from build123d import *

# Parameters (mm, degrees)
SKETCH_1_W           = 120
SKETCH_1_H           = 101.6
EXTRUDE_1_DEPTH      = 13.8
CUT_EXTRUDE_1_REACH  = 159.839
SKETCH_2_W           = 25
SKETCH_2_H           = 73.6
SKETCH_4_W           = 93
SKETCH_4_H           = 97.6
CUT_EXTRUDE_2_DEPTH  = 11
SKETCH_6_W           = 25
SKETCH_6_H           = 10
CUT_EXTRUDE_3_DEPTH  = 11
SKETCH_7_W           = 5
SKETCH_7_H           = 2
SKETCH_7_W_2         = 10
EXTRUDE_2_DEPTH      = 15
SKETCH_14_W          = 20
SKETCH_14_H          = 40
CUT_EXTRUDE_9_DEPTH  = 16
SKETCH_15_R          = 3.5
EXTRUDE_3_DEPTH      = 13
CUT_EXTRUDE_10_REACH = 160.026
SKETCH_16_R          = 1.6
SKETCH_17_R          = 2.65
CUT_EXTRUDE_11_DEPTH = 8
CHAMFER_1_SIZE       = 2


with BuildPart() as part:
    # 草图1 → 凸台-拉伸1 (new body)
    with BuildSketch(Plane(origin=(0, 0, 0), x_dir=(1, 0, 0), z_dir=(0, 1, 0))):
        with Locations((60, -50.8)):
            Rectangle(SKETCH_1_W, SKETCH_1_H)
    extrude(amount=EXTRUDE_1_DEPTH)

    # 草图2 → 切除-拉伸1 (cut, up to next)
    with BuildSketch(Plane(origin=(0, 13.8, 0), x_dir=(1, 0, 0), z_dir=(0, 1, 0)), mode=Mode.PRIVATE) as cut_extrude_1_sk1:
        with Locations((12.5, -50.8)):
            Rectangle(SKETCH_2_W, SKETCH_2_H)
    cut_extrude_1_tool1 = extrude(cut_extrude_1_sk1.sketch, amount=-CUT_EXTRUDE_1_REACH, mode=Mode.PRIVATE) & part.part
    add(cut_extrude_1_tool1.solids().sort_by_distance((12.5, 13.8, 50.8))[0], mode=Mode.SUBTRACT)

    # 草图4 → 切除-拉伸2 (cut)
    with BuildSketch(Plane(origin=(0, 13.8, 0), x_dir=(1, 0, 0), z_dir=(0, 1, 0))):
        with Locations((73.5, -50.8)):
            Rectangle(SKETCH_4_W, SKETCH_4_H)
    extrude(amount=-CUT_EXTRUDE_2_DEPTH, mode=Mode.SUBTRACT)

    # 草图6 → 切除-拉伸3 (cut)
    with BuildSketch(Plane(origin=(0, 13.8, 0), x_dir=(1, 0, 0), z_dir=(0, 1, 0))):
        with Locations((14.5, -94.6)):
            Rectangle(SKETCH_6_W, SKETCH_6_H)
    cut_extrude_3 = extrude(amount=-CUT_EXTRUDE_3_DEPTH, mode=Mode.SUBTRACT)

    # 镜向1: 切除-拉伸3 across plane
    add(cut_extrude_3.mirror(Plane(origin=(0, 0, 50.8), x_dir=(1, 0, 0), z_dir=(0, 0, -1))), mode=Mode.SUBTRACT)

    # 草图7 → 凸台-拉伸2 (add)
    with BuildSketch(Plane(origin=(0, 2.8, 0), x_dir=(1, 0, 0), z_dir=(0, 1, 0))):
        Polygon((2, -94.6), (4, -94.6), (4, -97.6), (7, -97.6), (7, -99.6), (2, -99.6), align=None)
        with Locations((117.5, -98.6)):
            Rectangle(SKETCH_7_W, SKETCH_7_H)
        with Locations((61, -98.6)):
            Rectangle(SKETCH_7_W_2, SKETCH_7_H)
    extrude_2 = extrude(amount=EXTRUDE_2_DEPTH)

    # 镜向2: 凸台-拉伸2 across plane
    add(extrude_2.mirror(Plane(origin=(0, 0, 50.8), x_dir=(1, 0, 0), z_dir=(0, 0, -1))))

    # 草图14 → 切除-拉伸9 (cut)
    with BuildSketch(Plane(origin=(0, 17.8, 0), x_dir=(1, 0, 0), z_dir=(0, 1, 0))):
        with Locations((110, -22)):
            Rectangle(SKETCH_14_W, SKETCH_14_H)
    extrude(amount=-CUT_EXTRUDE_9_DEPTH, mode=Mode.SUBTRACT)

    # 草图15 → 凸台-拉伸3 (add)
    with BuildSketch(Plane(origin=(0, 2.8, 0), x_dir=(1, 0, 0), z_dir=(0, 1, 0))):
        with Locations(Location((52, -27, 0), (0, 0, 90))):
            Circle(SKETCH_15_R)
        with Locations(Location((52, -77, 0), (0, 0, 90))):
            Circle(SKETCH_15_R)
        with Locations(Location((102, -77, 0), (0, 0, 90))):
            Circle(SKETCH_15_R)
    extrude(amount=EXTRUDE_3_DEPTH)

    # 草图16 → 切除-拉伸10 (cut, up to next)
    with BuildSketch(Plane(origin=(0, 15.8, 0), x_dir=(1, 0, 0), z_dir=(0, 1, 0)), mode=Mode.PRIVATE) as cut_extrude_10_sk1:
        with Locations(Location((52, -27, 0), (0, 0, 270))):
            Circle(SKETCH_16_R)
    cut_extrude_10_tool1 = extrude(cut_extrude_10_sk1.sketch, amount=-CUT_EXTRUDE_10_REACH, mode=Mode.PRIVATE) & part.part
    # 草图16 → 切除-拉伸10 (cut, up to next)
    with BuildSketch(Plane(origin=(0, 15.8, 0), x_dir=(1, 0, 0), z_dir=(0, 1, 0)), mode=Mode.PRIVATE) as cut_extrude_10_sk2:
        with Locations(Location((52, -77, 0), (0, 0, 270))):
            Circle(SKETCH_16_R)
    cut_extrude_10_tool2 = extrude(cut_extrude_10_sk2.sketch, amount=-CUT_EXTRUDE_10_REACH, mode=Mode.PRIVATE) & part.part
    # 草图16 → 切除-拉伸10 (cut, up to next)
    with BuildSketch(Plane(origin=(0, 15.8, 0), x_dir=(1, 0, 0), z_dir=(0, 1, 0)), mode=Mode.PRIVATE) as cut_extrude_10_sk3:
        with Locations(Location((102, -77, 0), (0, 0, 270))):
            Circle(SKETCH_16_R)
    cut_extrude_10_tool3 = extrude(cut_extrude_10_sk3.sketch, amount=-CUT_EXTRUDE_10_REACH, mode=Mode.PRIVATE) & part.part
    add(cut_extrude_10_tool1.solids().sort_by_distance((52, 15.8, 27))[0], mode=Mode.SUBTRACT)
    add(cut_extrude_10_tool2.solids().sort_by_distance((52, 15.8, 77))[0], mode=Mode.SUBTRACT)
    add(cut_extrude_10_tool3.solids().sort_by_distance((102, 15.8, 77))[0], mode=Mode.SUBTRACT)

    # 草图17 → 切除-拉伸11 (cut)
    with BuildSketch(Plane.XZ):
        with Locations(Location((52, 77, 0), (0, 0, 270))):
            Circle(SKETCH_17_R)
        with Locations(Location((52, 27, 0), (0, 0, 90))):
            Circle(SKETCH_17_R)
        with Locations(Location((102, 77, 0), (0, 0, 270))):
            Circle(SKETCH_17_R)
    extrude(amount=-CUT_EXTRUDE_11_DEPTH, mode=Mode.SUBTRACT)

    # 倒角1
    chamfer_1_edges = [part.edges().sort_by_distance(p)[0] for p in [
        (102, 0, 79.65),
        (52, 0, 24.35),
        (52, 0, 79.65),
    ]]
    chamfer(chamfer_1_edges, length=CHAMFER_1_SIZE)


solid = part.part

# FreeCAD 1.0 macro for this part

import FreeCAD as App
import Part
import Sketcher

V = App.Vector
Q = App.Units.Quantity


def edges_at(feature, points):
    """Names of the edges that pass closest to the given points."""
    edges = feature.Shape.Edges
    near = lambda p: min(range(len(edges)), key=lambda i: edges[i].distToShape(Part.Vertex(*p))[0])
    return sorted({f"Edge{near(p) + 1}" for p in points})

doc = App.newDocument("Part")
params = doc.addObject("Spreadsheet::Sheet", "Params")
for row, (alias, value) in enumerate([
    ("sketch1_width", "120 mm"),
    ("sketch1_height", "101.6 mm"),
    ("pad1_length", "13.8 mm"),
    ("sketch2_width", "25 mm"),
    ("sketch2_height", "73.6 mm"),
    ("sketch3_width", "93 mm"),
    ("sketch3_height", "97.6 mm"),
    ("pocket2_length", "11 mm"),
    ("sketch4_width", "25 mm"),
    ("sketch4_height", "10 mm"),
    ("pocket3_length", "11 mm"),
    ("sketch5_width", "2 mm"),
    ("sketch5_width2", "5 mm"),
    ("sketch5_width3", "10 mm"),
    ("pad2_length", "15 mm"),
    ("sketch6_width", "20 mm"),
    ("sketch6_height", "40 mm"),
    ("pocket4_length", "16 mm"),
    ("sketch7_diameter", "7 mm"),
    ("pad3_length", "13 mm"),
    ("sketch8_diameter", "3.2 mm"),
    ("sketch9_diameter", "3.2 mm"),
    ("sketch10_diameter", "3.2 mm"),
    ("sketch11_diameter", "5.3 mm"),
    ("pocket8_length", "8 mm"),
    ("chamfer_size", "2 mm"),
], start=1):
    params.set(f"A{row}", alias)
    params.set(f"B{row}", "=" + value)
    params.setAlias(f"B{row}", alias)

body = doc.addObject("PartDesign::Body", "Body")

sketch1 = body.newObject("Sketcher::SketchObject", "Sketch")
sketch1.AttachmentSupport = (doc.getObject("XZ_Plane"), [""])
sketch1.MapMode = "FlatFace"
sketch1.addGeometry(Part.LineSegment(V(0, 0, 0), V(0, 102, 0)), False)
sketch1.addGeometry(Part.LineSegment(V(0, 102, 0), V(120, 102, 0)), False)
sketch1.addGeometry(Part.LineSegment(V(120, 102, 0), V(120, 0, 0)), False)
sketch1.addGeometry(Part.LineSegment(V(120, 0, 0), V(0, 0, 0)), False)
sketch1.addConstraint(Sketcher.Constraint("Coincident", 0, 2, 1, 1))
sketch1.addConstraint(Sketcher.Constraint("Coincident", 1, 2, 2, 1))
sketch1.addConstraint(Sketcher.Constraint("Coincident", 2, 2, 3, 1))
sketch1.addConstraint(Sketcher.Constraint("Coincident", 3, 2, 0, 1))
sketch1.addConstraint(Sketcher.Constraint("Vertical", 0))
sketch1.addConstraint(Sketcher.Constraint("Horizontal", 1))
sketch1.addConstraint(Sketcher.Constraint("Vertical", 2))
sketch1.addConstraint(Sketcher.Constraint("Horizontal", 3))
sketch1.addConstraint(Sketcher.Constraint("Coincident", 3, 2, -1, 1))
sketch1.addConstraint(Sketcher.Constraint("DistanceX", 1, 1, 1, 2, Q("120 mm")))
sketch1.addConstraint(Sketcher.Constraint("DistanceY", 0, 1, 0, 2, Q("101.6 mm")))
sketch1.setExpression("Constraints[9]", "Params.sketch1_width")
sketch1.setExpression("Constraints[10]", "Params.sketch1_height")
pad1 = body.newObject("PartDesign::Pad", "Pad")
pad1.Profile = sketch1
pad1.setExpression("Length", "Params.pad1_length")
pad1.Reversed = True

sketch2 = body.newObject("Sketcher::SketchObject", "Sketch001")
sketch2.AttachmentSupport = (doc.getObject("XZ_Plane"), [""])
sketch2.MapMode = "FlatFace"
sketch2.AttachmentOffset = App.Placement(V(0, 0, -13.8), App.Rotation())
sketch2.addGeometry(Part.LineSegment(V(0, 14, 0), V(0, 88, 0)), False)
sketch2.addGeometry(Part.LineSegment(V(0, 88, 0), V(25, 88, 0)), False)
sketch2.addGeometry(Part.LineSegment(V(25, 88, 0), V(25, 14, 0)), False)
sketch2.addGeometry(Part.LineSegment(V(25, 14, 0), V(0, 14, 0)), False)
sketch2.addConstraint(Sketcher.Constraint("Coincident", 0, 2, 1, 1))
sketch2.addConstraint(Sketcher.Constraint("Coincident", 1, 2, 2, 1))
sketch2.addConstraint(Sketcher.Constraint("Coincident", 2, 2, 3, 1))
sketch2.addConstraint(Sketcher.Constraint("Coincident", 3, 2, 0, 1))
sketch2.addConstraint(Sketcher.Constraint("Vertical", 0))
sketch2.addConstraint(Sketcher.Constraint("Horizontal", 1))
sketch2.addConstraint(Sketcher.Constraint("Vertical", 2))
sketch2.addConstraint(Sketcher.Constraint("Horizontal", 3))
sketch2.addConstraint(Sketcher.Constraint("PointOnObject", 0, 2, -2))
sketch2.addConstraint(Sketcher.Constraint("DistanceX", 1, 1, 1, 2, Q("25 mm")))
sketch2.addConstraint(Sketcher.Constraint("DistanceY", 0, 1, 0, 2, Q("73.6 mm")))
sketch2.addConstraint(Sketcher.Constraint("DistanceY", -1, 1, 2, 2, Q("14 mm")))
sketch2.setExpression("Constraints[9]", "Params.sketch2_width")
sketch2.setExpression("Constraints[10]", "Params.sketch2_height")
pocket1 = body.newObject("PartDesign::Pocket", "Pocket")
pocket1.Profile = sketch2
pocket1.Type = "UpToFirst"
pocket1.Reversed = True

sketch3 = body.newObject("Sketcher::SketchObject", "Sketch002")
sketch3.AttachmentSupport = (doc.getObject("XZ_Plane"), [""])
sketch3.MapMode = "FlatFace"
sketch3.AttachmentOffset = App.Placement(V(0, 0, -13.8), App.Rotation())
sketch3.addGeometry(Part.LineSegment(V(27, 2, 0), V(27, 100, 0)), False)
sketch3.addGeometry(Part.LineSegment(V(27, 100, 0), V(120, 100, 0)), False)
sketch3.addGeometry(Part.LineSegment(V(120, 100, 0), V(120, 2, 0)), False)
sketch3.addGeometry(Part.LineSegment(V(120, 2, 0), V(27, 2, 0)), False)
sketch3.addConstraint(Sketcher.Constraint("Coincident", 0, 2, 1, 1))
sketch3.addConstraint(Sketcher.Constraint("Coincident", 1, 2, 2, 1))
sketch3.addConstraint(Sketcher.Constraint("Coincident", 2, 2, 3, 1))
sketch3.addConstraint(Sketcher.Constraint("Coincident", 3, 2, 0, 1))
sketch3.addConstraint(Sketcher.Constraint("Vertical", 0))
sketch3.addConstraint(Sketcher.Constraint("Horizontal", 1))
sketch3.addConstraint(Sketcher.Constraint("Vertical", 2))
sketch3.addConstraint(Sketcher.Constraint("Horizontal", 3))
sketch3.addConstraint(Sketcher.Constraint("DistanceX", 1, 1, 1, 2, Q("93 mm")))
sketch3.addConstraint(Sketcher.Constraint("DistanceY", 0, 1, 0, 2, Q("97.6 mm")))
sketch3.addConstraint(Sketcher.Constraint("DistanceX", -1, 1, 0, 2, Q("27 mm")))
sketch3.addConstraint(Sketcher.Constraint("DistanceY", -1, 1, 2, 2, Q("2 mm")))
sketch3.setExpression("Constraints[8]", "Params.sketch3_width")
sketch3.setExpression("Constraints[9]", "Params.sketch3_height")
pocket2 = body.newObject("PartDesign::Pocket", "Pocket001")
pocket2.Profile = sketch3
pocket2.setExpression("Length", "Params.pocket2_length")
pocket2.Reversed = True

sketch4 = body.newObject("Sketcher::SketchObject", "Sketch003")
sketch4.AttachmentSupport = (doc.getObject("XZ_Plane"), [""])
sketch4.MapMode = "FlatFace"
sketch4.AttachmentOffset = App.Placement(V(0, 0, -13.8), App.Rotation())
sketch4.addGeometry(Part.LineSegment(V(2, 90, 0), V(2, 100, 0)), False)
sketch4.addGeometry(Part.LineSegment(V(2, 100, 0), V(27, 100, 0)), False)
sketch4.addGeometry(Part.LineSegment(V(27, 100, 0), V(27, 90, 0)), False)
sketch4.addGeometry(Part.LineSegment(V(27, 90, 0), V(2, 90, 0)), False)
sketch4.addConstraint(Sketcher.Constraint("Coincident", 0, 2, 1, 1))
sketch4.addConstraint(Sketcher.Constraint("Coincident", 1, 2, 2, 1))
sketch4.addConstraint(Sketcher.Constraint("Coincident", 2, 2, 3, 1))
sketch4.addConstraint(Sketcher.Constraint("Coincident", 3, 2, 0, 1))
sketch4.addConstraint(Sketcher.Constraint("Vertical", 0))
sketch4.addConstraint(Sketcher.Constraint("Horizontal", 1))
sketch4.addConstraint(Sketcher.Constraint("Vertical", 2))
sketch4.addConstraint(Sketcher.Constraint("Horizontal", 3))
sketch4.addConstraint(Sketcher.Constraint("DistanceX", 1, 1, 1, 2, Q("25 mm")))
sketch4.addConstraint(Sketcher.Constraint("DistanceY", 0, 1, 0, 2, Q("10 mm")))
sketch4.addConstraint(Sketcher.Constraint("DistanceX", -1, 1, 0, 2, Q("2 mm")))
sketch4.addConstraint(Sketcher.Constraint("DistanceY", -1, 1, 0, 2, Q("99.6 mm")))
sketch4.setExpression("Constraints[8]", "Params.sketch4_width")
sketch4.setExpression("Constraints[9]", "Params.sketch4_height")
pocket3 = body.newObject("PartDesign::Pocket", "Pocket002")
pocket3.Profile = sketch4
pocket3.setExpression("Length", "Params.pocket3_length")
pocket3.Reversed = True
doc.recompute()

datumplane = body.newObject("PartDesign::Plane", "DatumPlane")
datumplane.AttachmentSupport = (doc.getObject("XY_Plane"), [""])
datumplane.MapMode = "FlatFace"
datumplane.AttachmentOffset = App.Placement(V(0, 0, 50.8), App.Rotation())
mirrored = body.newObject("PartDesign::Mirrored", "Mirrored")
mirrored.Originals = [pocket3]
mirrored.MirrorPlane = (datumplane, [""])
body.Tip = mirrored

sketch5 = body.newObject("Sketcher::SketchObject", "Sketch004")
sketch5.AttachmentSupport = (doc.getObject("XZ_Plane"), [""])
sketch5.MapMode = "FlatFace"
sketch5.AttachmentOffset = App.Placement(V(0, 0, -2.8), App.Rotation())
sketch5.addGeometry(Part.LineSegment(V(4, 94.6, 0), V(2, 94.6, 0)), False)
sketch5.addGeometry(Part.LineSegment(V(2, 94.6, 0), V(2, 99.6, 0)), False)
sketch5.addGeometry(Part.LineSegment(V(2, 99.6, 0), V(7, 99.6, 0)), False)
sketch5.addGeometry(Part.LineSegment(V(7, 99.6, 0), V(7, 97.6, 0)), False)
sketch5.addGeometry(Part.LineSegment(V(7, 97.6, 0), V(4, 97.6, 0)), False)
sketch5.addGeometry(Part.LineSegment(V(4, 97.6, 0), V(4, 94.6, 0)), False)
sketch5.addGeometry(Part.LineSegment(V(115, 97.6, 0), V(115, 99.6, 0)), False)
sketch5.addGeometry(Part.LineSegment(V(115, 99.6, 0), V(120, 99.6, 0)), False)
sketch5.addGeometry(Part.LineSegment(V(120, 99.6, 0), V(120, 97.6, 0)), False)
sketch5.addGeometry(Part.LineSegment(V(120, 97.6, 0), V(115, 97.6, 0)), False)
sketch5.addGeometry(Part.LineSegment(V(56, 97.6, 0), V(56, 99.6, 0)), False)
sketch5.addGeometry(Part.LineSegment(V(56, 99.6, 0), V(66, 99.6, 0)), False)
sketch5.addGeometry(Part.LineSegment(V(66, 99.6, 0), V(66, 97.6, 0)), False)
sketch5.addGeometry(Part.LineSegment(V(66, 97.6, 0), V(56, 97.6, 0)), False)
sketch5.addConstraint(Sketcher.Constraint("Coincident", 0, 2, 1, 1))
sketch5.addConstraint(Sketcher.Constraint("Coincident", 1, 2, 2, 1))
sketch5.addConstraint(Sketcher.Constraint("Coincident", 2, 2, 3, 1))
sketch5.addConstraint(Sketcher.Constraint("Coincident", 3, 2, 4, 1))
sketch5.addConstraint(Sketcher.Constraint("Coincident", 4, 2, 5, 1))
sketch5.addConstraint(Sketcher.Constraint("Coincident", 5, 2, 0, 1))
sketch5.addConstraint(Sketcher.Constraint("Coincident", 6, 2, 7, 1))
sketch5.addConstraint(Sketcher.Constraint("Coincident", 7, 2, 8, 1))
sketch5.addConstraint(Sketcher.Constraint("Coincident", 8, 2, 9, 1))
sketch5.addConstraint(Sketcher.Constraint("Coincident", 9, 2, 6, 1))
sketch5.addConstraint(Sketcher.Constraint("Coincident", 10, 2, 11, 1))
sketch5.addConstraint(Sketcher.Constraint("Coincident", 11, 2, 12, 1))
sketch5.addConstraint(Sketcher.Constraint("Coincident", 12, 2, 13, 1))
sketch5.addConstraint(Sketcher.Constraint("Coincident", 13, 2, 10, 1))
sketch5.addConstraint(Sketcher.Constraint("Horizontal", 0))
sketch5.addConstraint(Sketcher.Constraint("Vertical", 1))
sketch5.addConstraint(Sketcher.Constraint("Horizontal", 2))
sketch5.addConstraint(Sketcher.Constraint("Vertical", 3))
sketch5.addConstraint(Sketcher.Constraint("Horizontal", 4))
sketch5.addConstraint(Sketcher.Constraint("Vertical", 5))
sketch5.addConstraint(Sketcher.Constraint("Vertical", 6))
sketch5.addConstraint(Sketcher.Constraint("Horizontal", 7))
sketch5.addConstraint(Sketcher.Constraint("Vertical", 8))
sketch5.addConstraint(Sketcher.Constraint("Horizontal", 9))
sketch5.addConstraint(Sketcher.Constraint("Vertical", 10))
sketch5.addConstraint(Sketcher.Constraint("Horizontal", 11))
sketch5.addConstraint(Sketcher.Constraint("Vertical", 12))
sketch5.addConstraint(Sketcher.Constraint("Horizontal", 13))
sketch5.addConstraint(Sketcher.Constraint("Horizontal", 2, 2, 6, 2))
sketch5.addConstraint(Sketcher.Constraint("Horizontal", 4, 2, 8, 2))
sketch5.addConstraint(Sketcher.Constraint("Horizontal", 7, 2, 10, 2))
sketch5.addConstraint(Sketcher.Constraint("Horizontal", 9, 2, 12, 2))
sketch5.addConstraint(Sketcher.Constraint("Equal", 2, 7))
sketch5.addConstraint(Sketcher.Constraint("Equal", 9, 1))
sketch5.addConstraint(Sketcher.Constraint("Equal", 0, 3))
sketch5.addConstraint(Sketcher.Constraint("DistanceX", 0, 2, 0, 1, Q("2 mm")))
sketch5.addConstraint(Sketcher.Constraint("DistanceX", 2, 1, 2, 2, Q("5 mm")))
sketch5.addConstraint(Sketcher.Constraint("DistanceX", 11, 1, 11, 2, Q("10 mm")))
sketch5.addConstraint(Sketcher.Constraint("DistanceX", -1, 1, 0, 2, Q("2 mm")))
sketch5.addConstraint(Sketcher.Constraint("DistanceX", -1, 1, 6, 2, Q("115 mm")))
sketch5.addConstraint(Sketcher.Constraint("DistanceX", -1, 1, 10, 2, Q("56 mm")))
sketch5.addConstraint(Sketcher.Constraint("DistanceY", -1, 1, 0, 2, Q("94.6 mm")))
sketch5.setExpression("Constraints[35]", "Params.sketch5_width")
sketch5.setExpression("Constraints[36]", "Params.sketch5_width2")
sketch5.setExpression("Constraints[37]", "Params.sketch5_width3")
pad2 = body.newObject("PartDesign::Pad", "Pad001")
pad2.Profile = sketch5
pad2.setExpression("Length", "Params.pad2_length")
pad2.Reversed = True
doc.recompute()

datumplane2 = body.newObject("PartDesign::Plane", "DatumPlane001")
datumplane2.AttachmentSupport = (doc.getObject("XY_Plane"), [""])
datumplane2.MapMode = "FlatFace"
datumplane2.AttachmentOffset = App.Placement(V(0, 0, 50.8), App.Rotation())
mirrored2 = body.newObject("PartDesign::Mirrored", "Mirrored001")
mirrored2.Originals = [pad2]
mirrored2.MirrorPlane = (datumplane2, [""])
body.Tip = mirrored2

sketch6 = body.newObject("Sketcher::SketchObject", "Sketch005")
sketch6.AttachmentSupport = (doc.getObject("XZ_Plane"), [""])
sketch6.MapMode = "FlatFace"
sketch6.AttachmentOffset = App.Placement(V(0, 0, -17.8), App.Rotation())
sketch6.addGeometry(Part.LineSegment(V(100, 2, 0), V(100, 42, 0)), False)
sketch6.addGeometry(Part.LineSegment(V(100, 42, 0), V(120, 42, 0)), False)
sketch6.addGeometry(Part.LineSegment(V(120, 42, 0), V(120, 2, 0)), False)
sketch6.addGeometry(Part.LineSegment(V(120, 2, 0), V(100, 2, 0)), False)
sketch6.addConstraint(Sketcher.Constraint("Coincident", 0, 2, 1, 1))
sketch6.addConstraint(Sketcher.Constraint("Coincident", 1, 2, 2, 1))
sketch6.addConstraint(Sketcher.Constraint("Coincident", 2, 2, 3, 1))
sketch6.addConstraint(Sketcher.Constraint("Coincident", 3, 2, 0, 1))
sketch6.addConstraint(Sketcher.Constraint("Vertical", 0))
sketch6.addConstraint(Sketcher.Constraint("Horizontal", 1))
sketch6.addConstraint(Sketcher.Constraint("Vertical", 2))
sketch6.addConstraint(Sketcher.Constraint("Horizontal", 3))
sketch6.addConstraint(Sketcher.Constraint("DistanceX", 1, 1, 1, 2, Q("20 mm")))
sketch6.addConstraint(Sketcher.Constraint("DistanceY", 0, 1, 0, 2, Q("40 mm")))
sketch6.addConstraint(Sketcher.Constraint("DistanceX", -1, 1, 0, 2, Q("100 mm")))
sketch6.addConstraint(Sketcher.Constraint("DistanceY", -1, 1, 0, 2, Q("42 mm")))
sketch6.setExpression("Constraints[8]", "Params.sketch6_width")
sketch6.setExpression("Constraints[9]", "Params.sketch6_height")
pocket4 = body.newObject("PartDesign::Pocket", "Pocket003")
pocket4.Profile = sketch6
pocket4.setExpression("Length", "Params.pocket4_length")
pocket4.Reversed = True

sketch7 = body.newObject("Sketcher::SketchObject", "Sketch006")
sketch7.AttachmentSupport = (doc.getObject("XZ_Plane"), [""])
sketch7.MapMode = "FlatFace"
sketch7.AttachmentOffset = App.Placement(V(0, 0, -2.8), App.Rotation())
sketch7.addGeometry(Part.Circle(V(52, 27, 0), V(0, 0, 1), 3.5), False)
sketch7.addGeometry(Part.Circle(V(52, 77, 0), V(0, 0, 1), 3.5), False)
sketch7.addGeometry(Part.Circle(V(102, 77, 0), V(0, 0, 1), 3.5), False)
sketch7.addConstraint(Sketcher.Constraint("Equal", 0, 1))
sketch7.addConstraint(Sketcher.Constraint("Equal", 1, 2))
sketch7.addConstraint(Sketcher.Constraint("Horizontal", 1, 3, 2, 3))
sketch7.addConstraint(Sketcher.Constraint("Vertical", 0, 3, 1, 3))
sketch7.addConstraint(Sketcher.Constraint("Diameter", 0, Q("7 mm")))
sketch7.addConstraint(Sketcher.Constraint("DistanceX", -1, 1, 0, 3, Q("52 mm")))
sketch7.addConstraint(Sketcher.Constraint("DistanceY", -1, 1, 0, 3, Q("27 mm")))
sketch7.addConstraint(Sketcher.Constraint("DistanceY", -1, 1, 1, 3, Q("77 mm")))
sketch7.addConstraint(Sketcher.Constraint("DistanceX", -1, 1, 2, 3, Q("102 mm")))
sketch7.setExpression("Constraints[4]", "Params.sketch7_diameter")
pad3 = body.newObject("PartDesign::Pad", "Pad002")
pad3.Profile = sketch7
pad3.setExpression("Length", "Params.pad3_length")
pad3.Reversed = True

sketch8 = body.newObject("Sketcher::SketchObject", "Sketch007")
sketch8.AttachmentSupport = (doc.getObject("XZ_Plane"), [""])
sketch8.MapMode = "FlatFace"
sketch8.AttachmentOffset = App.Placement(V(0, 0, -15.8), App.Rotation())
sketch8.addGeometry(Part.Circle(V(52, 27, 0), V(0, 0, 1), 1.6), False)
sketch8.addConstraint(Sketcher.Constraint("Diameter", 0, Q("3.2 mm")))
sketch8.addConstraint(Sketcher.Constraint("DistanceX", -1, 1, 0, 3, Q("52 mm")))
sketch8.addConstraint(Sketcher.Constraint("DistanceY", -1, 1, 0, 3, Q("27 mm")))
sketch8.setExpression("Constraints[0]", "Params.sketch8_diameter")
pocket5 = body.newObject("PartDesign::Pocket", "Pocket004")
pocket5.Profile = sketch8
pocket5.Type = "UpToFirst"
pocket5.Reversed = True

sketch9 = body.newObject("Sketcher::SketchObject", "Sketch008")
sketch9.AttachmentSupport = (doc.getObject("XZ_Plane"), [""])
sketch9.MapMode = "FlatFace"
sketch9.AttachmentOffset = App.Placement(V(0, 0, -15.8), App.Rotation())
sketch9.addGeometry(Part.Circle(V(52, 77, 0), V(0, 0, 1), 1.6), False)
sketch9.addConstraint(Sketcher.Constraint("Diameter", 0, Q("3.2 mm")))
sketch9.addConstraint(Sketcher.Constraint("DistanceX", -1, 1, 0, 3, Q("52 mm")))
sketch9.addConstraint(Sketcher.Constraint("DistanceY", -1, 1, 0, 3, Q("77 mm")))
sketch9.setExpression("Constraints[0]", "Params.sketch9_diameter")
pocket6 = body.newObject("PartDesign::Pocket", "Pocket005")
pocket6.Profile = sketch9
pocket6.Type = "UpToFirst"
pocket6.Reversed = True

sketch10 = body.newObject("Sketcher::SketchObject", "Sketch009")
sketch10.AttachmentSupport = (doc.getObject("XZ_Plane"), [""])
sketch10.MapMode = "FlatFace"
sketch10.AttachmentOffset = App.Placement(V(0, 0, -15.8), App.Rotation())
sketch10.addGeometry(Part.Circle(V(102, 77, 0), V(0, 0, 1), 1.6), False)
sketch10.addConstraint(Sketcher.Constraint("Diameter", 0, Q("3.2 mm")))
sketch10.addConstraint(Sketcher.Constraint("DistanceX", -1, 1, 0, 3, Q("102 mm")))
sketch10.addConstraint(Sketcher.Constraint("DistanceY", -1, 1, 0, 3, Q("77 mm")))
sketch10.setExpression("Constraints[0]", "Params.sketch10_diameter")
pocket7 = body.newObject("PartDesign::Pocket", "Pocket006")
pocket7.Profile = sketch10
pocket7.Type = "UpToFirst"
pocket7.Reversed = True

sketch11 = body.newObject("Sketcher::SketchObject", "Sketch010")
sketch11.AttachmentSupport = (doc.getObject("XZ_Plane"), [""])
sketch11.MapMode = "FlatFace"
sketch11.addGeometry(Part.Circle(V(52, 77, 0), V(0, 0, 1), 2.6), False)
sketch11.addGeometry(Part.Circle(V(52, 27, 0), V(0, 0, 1), 2.6), False)
sketch11.addGeometry(Part.Circle(V(102, 77, 0), V(0, 0, 1), 2.6), False)
sketch11.addConstraint(Sketcher.Constraint("Equal", 0, 1))
sketch11.addConstraint(Sketcher.Constraint("Equal", 1, 2))
sketch11.addConstraint(Sketcher.Constraint("Horizontal", 0, 3, 2, 3))
sketch11.addConstraint(Sketcher.Constraint("Vertical", 0, 3, 1, 3))
sketch11.addConstraint(Sketcher.Constraint("Diameter", 0, Q("5.3 mm")))
sketch11.addConstraint(Sketcher.Constraint("DistanceX", -1, 1, 0, 3, Q("52 mm")))
sketch11.addConstraint(Sketcher.Constraint("DistanceY", -1, 1, 0, 3, Q("77 mm")))
sketch11.addConstraint(Sketcher.Constraint("DistanceY", -1, 1, 1, 3, Q("27 mm")))
sketch11.addConstraint(Sketcher.Constraint("DistanceX", -1, 1, 2, 3, Q("102 mm")))
sketch11.setExpression("Constraints[4]", "Params.sketch11_diameter")
pocket8 = body.newObject("PartDesign::Pocket", "Pocket007")
pocket8.Profile = sketch11
pocket8.setExpression("Length", "Params.pocket8_length")
doc.recompute()

chamfer = body.newObject("PartDesign::Chamfer", "Chamfer")
chamfer.Base = (pocket8, edges_at(pocket8, [(102, 0, 79.65), (52, 0, 24.35), (52, 0, 79.65)]))
chamfer.setExpression("Size", "Params.chamfer_size")

doc.recompute()
